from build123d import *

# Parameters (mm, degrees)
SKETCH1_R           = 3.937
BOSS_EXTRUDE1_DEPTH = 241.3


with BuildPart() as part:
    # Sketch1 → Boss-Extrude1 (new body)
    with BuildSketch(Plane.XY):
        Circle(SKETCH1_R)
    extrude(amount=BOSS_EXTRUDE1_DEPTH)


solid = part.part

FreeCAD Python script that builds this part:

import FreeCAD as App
import Part
import Sketcher
Q = App.Units.Quantity

doc = App.newDocument("Part")
body = doc.addObject("PartDesign::Body", "Body")

# Sketch on XY plane
sketch1 = body.newObject("Sketcher::SketchObject", "Sketch")
sketch1.AttachmentSupport = (doc.getObject("XY_Plane"), [""])
sketch1.MapMode = "FlatFace"
sketch1.addGeometry(Part.Circle(App.Vector(0, 0, 0), App.Vector(0, 0, 1), 3.937), False)
sketch1.addConstraint([
    Sketcher.Constraint("Coincident", 0, 3, -1, 1),
    Sketcher.Constraint("Diameter", 0, Q("0.31 in")),
])
pad1 = body.newObject("PartDesign::Pad", "Pad")
pad1.Profile = sketch1
pad1.Length = Q("9.5 in")

doc.recompute()
